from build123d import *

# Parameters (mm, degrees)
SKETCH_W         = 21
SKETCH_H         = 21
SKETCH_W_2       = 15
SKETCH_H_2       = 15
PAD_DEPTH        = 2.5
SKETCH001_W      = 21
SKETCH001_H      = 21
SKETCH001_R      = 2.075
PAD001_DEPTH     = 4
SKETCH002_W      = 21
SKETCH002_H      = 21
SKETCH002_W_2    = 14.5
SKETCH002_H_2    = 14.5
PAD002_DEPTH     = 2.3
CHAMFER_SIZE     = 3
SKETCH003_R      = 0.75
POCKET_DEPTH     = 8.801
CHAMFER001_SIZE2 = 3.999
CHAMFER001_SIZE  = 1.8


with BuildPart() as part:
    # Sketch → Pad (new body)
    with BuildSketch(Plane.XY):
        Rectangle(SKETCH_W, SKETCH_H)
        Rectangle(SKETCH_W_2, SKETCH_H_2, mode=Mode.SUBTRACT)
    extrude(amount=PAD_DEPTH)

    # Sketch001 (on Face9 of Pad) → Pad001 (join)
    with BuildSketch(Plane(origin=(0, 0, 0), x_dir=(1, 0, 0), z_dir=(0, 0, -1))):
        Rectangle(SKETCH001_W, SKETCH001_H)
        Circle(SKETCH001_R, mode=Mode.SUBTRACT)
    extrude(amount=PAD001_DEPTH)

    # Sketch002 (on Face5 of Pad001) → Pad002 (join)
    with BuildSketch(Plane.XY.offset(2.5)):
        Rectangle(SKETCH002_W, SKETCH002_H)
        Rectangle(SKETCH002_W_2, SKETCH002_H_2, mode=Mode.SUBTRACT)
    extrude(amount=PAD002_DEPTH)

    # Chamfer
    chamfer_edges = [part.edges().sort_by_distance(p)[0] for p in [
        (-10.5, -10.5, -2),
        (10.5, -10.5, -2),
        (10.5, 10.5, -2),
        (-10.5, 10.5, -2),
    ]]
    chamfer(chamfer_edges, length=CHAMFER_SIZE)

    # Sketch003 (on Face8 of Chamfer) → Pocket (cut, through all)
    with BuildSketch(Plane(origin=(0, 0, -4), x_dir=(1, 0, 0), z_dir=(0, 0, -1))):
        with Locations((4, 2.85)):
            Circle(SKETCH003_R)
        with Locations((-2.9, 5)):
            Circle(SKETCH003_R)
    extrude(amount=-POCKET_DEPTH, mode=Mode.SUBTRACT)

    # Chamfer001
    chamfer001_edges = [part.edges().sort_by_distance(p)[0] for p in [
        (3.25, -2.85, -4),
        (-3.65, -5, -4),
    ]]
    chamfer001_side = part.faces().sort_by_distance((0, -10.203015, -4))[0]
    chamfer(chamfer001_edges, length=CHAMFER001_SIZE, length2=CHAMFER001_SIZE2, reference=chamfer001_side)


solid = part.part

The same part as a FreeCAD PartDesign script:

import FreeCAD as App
import Part
import Sketcher

V = App.Vector


def edges_at(feature, points):
    """Names of the edges that pass closest to the given points."""
    edges = feature.Shape.Edges
    near = lambda p: min(range(len(edges)), key=lambda i: edges[i].distToShape(Part.Vertex(*p))[0])
    return sorted({f"Edge{near(p) + 1}" for p in points})

doc = App.newDocument("Part")
body = doc.addObject("PartDesign::Body", "Body")

# Sketch on XY plane
sketch1 = doc.addObject("Sketcher::SketchObject", "Sketch")
body.addObject(sketch1)
sketch1.AttachmentSupport = (doc.XY_Plane, [""])
sketch1.MapMode = "FlatFace"
sketch1.addGeometry([
    Part.LineSegment(V(-10, 10, 0), V(-10, -10, 0)),  # 0
    Part.LineSegment(V(-10, -10, 0), V(10, -10, 0)),  # 1
    Part.LineSegment(V(10, -10, 0), V(10, 10, 0)),  # 2
    Part.LineSegment(V(10, 10, 0), V(-10, 10, 0)),  # 3
    Part.LineSegment(V(8, -8, 0), V(-8, -8, 0)),  # 4
    Part.LineSegment(V(-8, -8, 0), V(-8, 8, 0)),  # 5
    Part.LineSegment(V(-8, 8, 0), V(8, 8, 0)),  # 6
    Part.LineSegment(V(8, 8, 0), V(8, -8, 0)),  # 7
], False)
sketch1.addConstraint([
    Sketcher.Constraint("Coincident", 0, 2, 1, 1),
    Sketcher.Constraint("Coincident", 1, 2, 2, 1),
    Sketcher.Constraint("Coincident", 2, 2, 3, 1),
    Sketcher.Constraint("Coincident", 3, 2, 0, 1),
    Sketcher.Constraint("Coincident", 4, 2, 5, 1),
    Sketcher.Constraint("Coincident", 5, 2, 6, 1),
    Sketcher.Constraint("Coincident", 6, 2, 7, 1),
    Sketcher.Constraint("Coincident", 7, 2, 4, 1),
    Sketcher.Constraint("Vertical", 0),
    Sketcher.Constraint("Horizontal", 1),
    Sketcher.Constraint("Vertical", 2),
    Sketcher.Constraint("Horizontal", 3),
    Sketcher.Constraint("Horizontal", 4),
    Sketcher.Constraint("Vertical", 5),
    Sketcher.Constraint("Horizontal", 6),
    Sketcher.Constraint("Vertical", 7),
    Sketcher.Constraint("Symmetric", 0, 2, 2, 2, -1, 1),
    Sketcher.Constraint("Symmetric", 4, 2, 6, 2, -1, 1),
    Sketcher.Constraint("Equal", 3, 0),
    Sketcher.Constraint("Equal", 6, 5),
    Sketcher.Constraint("DistanceX", 1, 1, 1, 2, 21.0),
    Sketcher.Constraint("DistanceX", 4, 2, 4, 1, 15.0),
])
pad1 = doc.addObject("PartDesign::Pad", "Pad")
body.addObject(pad1)
pad1.Profile = sketch1
pad1.Length = 2.5

# Sketch on XY plane
sketch2 = doc.addObject("Sketcher::SketchObject", "Sketch001")
body.addObject(sketch2)
sketch2.AttachmentSupport = (doc.XY_Plane, [""])
sketch2.MapMode = "FlatFace"
sketch2.addGeometry([
    Part.LineSegment(V(-10.5, -10.5, 0), V(-10.5, 10.5, 0)),  # 0
    Part.LineSegment(V(-10.5, 10.5, 0), V(10.5, 10.5, 0)),  # 1
    Part.LineSegment(V(10.5, 10.5, 0), V(10.5, -10.5, 0)),  # 2
    Part.LineSegment(V(10.5, -10.5, 0), V(-10.5, -10.5, 0)),  # 3
    Part.Circle(V(0, 0, 0), V(0, 0, 1), 2.1),  # 4
], False)
sketch2.addConstraint([
    Sketcher.Constraint("Coincident", 0, 2, 1, 1),
    Sketcher.Constraint("Coincident", 1, 2, 2, 1),
    Sketcher.Constraint("Coincident", 2, 2, 3, 1),
    Sketcher.Constraint("Coincident", 3, 2, 0, 1),
    Sketcher.Constraint("Vertical", 0),
    Sketcher.Constraint("Horizontal", 1),
    Sketcher.Constraint("Vertical", 2),
    Sketcher.Constraint("Horizontal", 3),
    Sketcher.Constraint("Coincident", 4, 3, -1, 1),
    Sketcher.Constraint("Symmetric", 0, 2, 2, 2, -1, 1),
    Sketcher.Constraint("Equal", 3, 0),
    Sketcher.Constraint("Diameter", 4, 4.15),
    Sketcher.Constraint("DistanceX", 1, 1, 1, 2, 21.0),
])
pad2 = doc.addObject("PartDesign::Pad", "Pad001")
body.addObject(pad2)
pad2.Profile = sketch2
pad2.Length = 4
pad2.Reversed = True

# Sketch on XY plane
sketch3 = doc.addObject("Sketcher::SketchObject", "Sketch002")
body.addObject(sketch3)
sketch3.AttachmentSupport = (doc.XY_Plane, [""])
sketch3.MapMode = "FlatFace"
sketch3.AttachmentOffset = App.Placement(V(0, 0, 2.5), App.Rotation())
sketch3.addGeometry([
    Part.LineSegment(V(-10, 10, 0), V(-10, -10, 0)),  # 0
    Part.LineSegment(V(-10, -10, 0), V(10, -10, 0)),  # 1
    Part.LineSegment(V(10, -10, 0), V(10, 10, 0)),  # 2
    Part.LineSegment(V(10, 10, 0), V(-10, 10, 0)),  # 3
    Part.LineSegment(V(7, -7, 0), V(-7, -7, 0)),  # 4
    Part.LineSegment(V(-7, -7, 0), V(-7, 7, 0)),  # 5
    Part.LineSegment(V(-7, 7, 0), V(7, 7, 0)),  # 6
    Part.LineSegment(V(7, 7, 0), V(7, -7, 0)),  # 7
], False)
sketch3.addConstraint([
    Sketcher.Constraint("Coincident", 0, 2, 1, 1),
    Sketcher.Constraint("Coincident", 1, 2, 2, 1),
    Sketcher.Constraint("Coincident", 2, 2, 3, 1),
    Sketcher.Constraint("Coincident", 3, 2, 0, 1),
    Sketcher.Constraint("Coincident", 4, 2, 5, 1),
    Sketcher.Constraint("Coincident", 5, 2, 6, 1),
    Sketcher.Constraint("Coincident", 6, 2, 7, 1),
    Sketcher.Constraint("Coincident", 7, 2, 4, 1),
    Sketcher.Constraint("Vertical", 0),
    Sketcher.Constraint("Horizontal", 1),
    Sketcher.Constraint("Vertical", 2),
    Sketcher.Constraint("Horizontal", 3),
    Sketcher.Constraint("Horizontal", 4),
    Sketcher.Constraint("Vertical", 5),
    Sketcher.Constraint("Horizontal", 6),
    Sketcher.Constraint("Vertical", 7),
    Sketcher.Constraint("Symmetric", 0, 2, 2, 2, -1, 1),
    Sketcher.Constraint("Symmetric", 4, 2, 6, 2, -1, 1),
    Sketcher.Constraint("Equal", 3, 0),
    Sketcher.Constraint("Equal", 6, 5),
    Sketcher.Constraint("DistanceX", 1, 1, 1, 2, 21.0),
    Sketcher.Constraint("DistanceX", 4, 2, 4, 1, 14.5),
])
pad3 = doc.addObject("PartDesign::Pad", "Pad002")
body.addObject(pad3)
pad3.Profile = sketch3
pad3.Length = 2.3
doc.recompute()

chamfer = doc.addObject("PartDesign::Chamfer", "Chamfer")
body.addObject(chamfer)
chamfer.Base = (pad3, edges_at(pad3, [
    (-10.5, -10.5, 0.4),
    (10.5, -10.5, 0.4),
    (10.5, 10.5, 0.4),
    (-10.5, 10.5, 0.4),
]))
chamfer.Size = 3

# Sketch on XY plane
sketch4 = doc.addObject("Sketcher::SketchObject", "Sketch003")
body.addObject(sketch4)
sketch4.AttachmentSupport = (doc.XY_Plane, [""])
sketch4.MapMode = "FlatFace"
sketch4.AttachmentOffset = App.Placement(V(0, 0, -4), App.Rotation())
sketch4.addGeometry([
    Part.Circle(V(4, -2.9, 0), V(0, 0, 1), 0.8),
    Part.Circle(V(-2.9, -5, 0), V(0, 0, 1), 0.8),
], False)
sketch4.addConstraint([
    Sketcher.Constraint("Equal", 0, 1),
    Sketcher.Constraint("Diameter", 0, 1.5),
    Sketcher.Constraint("DistanceX", -1, 1, 0, 3, 4.0),
    Sketcher.Constraint("DistanceY", 1, 3, -1, 1, 5.0),
    Sketcher.Constraint("DistanceX", 1, 3, -1, 1, 2.9),
    Sketcher.Constraint("DistanceY", 0, 3, -1, 1, 2.85),
])
pocket1 = doc.addObject("PartDesign::Pocket", "Pocket")
body.addObject(pocket1)
pocket1.Profile = sketch4
pocket1.Type = "ThroughAll"
pocket1.Reversed = True
doc.recompute()

chamfer2 = doc.addObject("PartDesign::Chamfer", "Chamfer001")
body.addObject(chamfer2)
chamfer2.Base = (pocket1, edges_at(pocket1, [(3.25, -2.85, -4), (-3.65, -5, -4)]))
chamfer2.ChamferType = "Two distances"
chamfer2.Size = 1.8
chamfer2.Size2 = 3.999

doc.recompute()
